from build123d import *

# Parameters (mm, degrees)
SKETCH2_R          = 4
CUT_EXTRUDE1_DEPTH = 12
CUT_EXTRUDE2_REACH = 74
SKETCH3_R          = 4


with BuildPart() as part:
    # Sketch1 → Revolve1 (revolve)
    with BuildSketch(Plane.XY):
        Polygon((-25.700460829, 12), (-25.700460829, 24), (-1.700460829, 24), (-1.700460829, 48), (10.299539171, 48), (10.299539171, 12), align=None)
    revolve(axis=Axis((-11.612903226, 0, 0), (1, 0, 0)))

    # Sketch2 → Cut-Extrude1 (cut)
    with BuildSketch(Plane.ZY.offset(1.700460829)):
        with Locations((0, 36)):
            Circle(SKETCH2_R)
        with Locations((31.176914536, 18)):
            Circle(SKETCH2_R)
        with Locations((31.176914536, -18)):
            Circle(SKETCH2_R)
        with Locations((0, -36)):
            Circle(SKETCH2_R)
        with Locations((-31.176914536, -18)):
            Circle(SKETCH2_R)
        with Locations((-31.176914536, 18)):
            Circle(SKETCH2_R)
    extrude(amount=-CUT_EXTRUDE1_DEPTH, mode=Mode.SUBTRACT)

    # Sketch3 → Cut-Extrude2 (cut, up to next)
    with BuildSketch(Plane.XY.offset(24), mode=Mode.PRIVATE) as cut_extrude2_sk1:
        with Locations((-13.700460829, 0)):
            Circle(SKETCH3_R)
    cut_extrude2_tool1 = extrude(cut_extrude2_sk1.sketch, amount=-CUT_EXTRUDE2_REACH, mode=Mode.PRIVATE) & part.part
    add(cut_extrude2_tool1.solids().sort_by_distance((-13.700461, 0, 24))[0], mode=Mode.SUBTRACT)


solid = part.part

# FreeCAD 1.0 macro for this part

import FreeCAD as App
import Part
import Sketcher
from FreeCAD import Vector


def add_polygon(sketch, points):
    """Adds a closed chain of lines whose ends are joined by coincident constraints."""
    first, n = sketch.GeometryCount, len(points)
    for a, b in zip(points, points[1:] + points[:1]):
        sketch.addGeometry(Part.LineSegment(App.Vector(*a, 0), App.Vector(*b, 0)), False)
    for i in range(n):
        sketch.addConstraint(Sketcher.Constraint("Coincident", first + i, 2, first + (i + 1) % n, 1))

doc = App.newDocument("Part")
params = doc.addObject("Spreadsheet::Sheet", "Params")
for row, (alias, value) in enumerate([
    ("sketch1_width", "36 mm"),
    ("sketch1_width2", "12 mm"),
    ("revolution_angle", "360 deg"),
    ("sketch2_diameter", "8 mm"),
    ("pocket1_length", "12 mm"),
    ("sketch3_diameter", "8 mm"),
], start=1):
    params.set(f"A{row}", alias)
    params.set(f"B{row}", "=" + value)
    params.setAlias(f"B{row}", alias)

body = doc.addObject("PartDesign::Body", "Body")

sketch1 = doc.addObject("Sketcher::SketchObject", "Sketch")
body.addObject(sketch1)
sketch1.AttachmentSupport = (doc.XY_Plane, [""])
sketch1.MapMode = "FlatFace"
add_polygon(sketch1, [(-26, 24), (-26, 12), (10, 12), (10, 48), (-2, 48), (-2, 24)])
sketch1.addConstraint(Sketcher.Constraint("Vertical", 0))
sketch1.addConstraint(Sketcher.Constraint("Horizontal", 1))
sketch1.addConstraint(Sketcher.Constraint("Vertical", 2))
sketch1.addConstraint(Sketcher.Constraint("Horizontal", 3))
sketch1.addConstraint(Sketcher.Constraint("Vertical", 4))
sketch1.addConstraint(Sketcher.Constraint("Horizontal", 5))
sketch1.addConstraint(Sketcher.Constraint("Equal", 3, 0))
sketch1.addConstraint(Sketcher.Constraint("Equal", 1, 2))
sketch1.addConstraint(Sketcher.Constraint("DistanceX", 1, 1, 1, 2, 36.0))
sketch1.addConstraint(Sketcher.Constraint("DistanceX", 3, 2, 3, 1, 12.0))
sketch1.addConstraint(Sketcher.Constraint("DistanceY", -1, 1, 0, 2, 12.0))
sketch1.addConstraint(Sketcher.Constraint("DistanceX", 0, 2, -1, 1, 25.700461))
sketch1.setExpression("Constraints[14]", "Params.sketch1_width")
sketch1.setExpression("Constraints[15]", "Params.sketch1_width2")
revolution = doc.addObject("PartDesign::Revolution", "Revolution")
body.addObject(revolution)
revolution.Profile = sketch1
revolution.ReferenceAxis = (sketch1, ["H_Axis"])
revolution.setExpression("Angle", "Params.revolution_angle")

sketch2 = doc.addObject("Sketcher::SketchObject", "Sketch001")
body.addObject(sketch2)
sketch2.AttachmentSupport = (doc.YZ_Plane, [""])
sketch2.MapMode = "FlatFace"
sketch2.AttachmentOffset = App.Placement(Vector(0, 0, -1.700461), App.Rotation())
sketch2.addGeometry(Part.Circle(Vector(36, 0, 0), Vector(0, 0, 1), 4), False)
sketch2.addGeometry(Part.Circle(Vector(18, 31.2, 0), Vector(0, 0, 1), 4), False)
sketch2.addGeometry(Part.Circle(Vector(-18, 31.2, 0), Vector(0, 0, 1), 4), False)
sketch2.addGeometry(Part.Circle(Vector(-36, 0, 0), Vector(0, 0, 1), 4), False)
sketch2.addGeometry(Part.Circle(Vector(-18, -31.2, 0), Vector(0, 0, 1), 4), False)
sketch2.addGeometry(Part.Circle(Vector(18, -31.2, 0), Vector(0, 0, 1), 4), False)
sketch2.addConstraint(Sketcher.Constraint("Equal", 0, 1))
sketch2.addConstraint(Sketcher.Constraint("Equal", 1, 2))
sketch2.addConstraint(Sketcher.Constraint("Equal", 2, 3))
sketch2.addConstraint(Sketcher.Constraint("Equal", 3, 4))
sketch2.addConstraint(Sketcher.Constraint("Equal", 4, 5))
sketch2.addConstraint(Sketcher.Constraint("Symmetric", 0, 3, 3, 3, -1, 1))
sketch2.addConstraint(Sketcher.Constraint("Symmetric", 1, 3, 4, 3, -1, 1))
sketch2.addConstraint(Sketcher.Constraint("Symmetric", 2, 3, 5, 3, -1, 1))
sketch2.addConstraint(Sketcher.Constraint("Symmetric", 1, 3, 2, 3, -2))
sketch2.addConstraint(Sketcher.Constraint("PointOnObject", 0, 3, -1))
sketch2.addConstraint(Sketcher.Constraint("Diameter", 0, 8.0))
sketch2.addConstraint(Sketcher.Constraint("DistanceX", -1, 1, 0, 3, 36.0))
sketch2.addConstraint(Sketcher.Constraint("DistanceX", -1, 1, 1, 3, 18.0))
sketch2.addConstraint(Sketcher.Constraint("DistanceY", 4, 3, 2, 3, 62.353829))
sketch2.setExpression("Constraints[10]", "Params.sketch2_diameter")
pocket1 = doc.addObject("PartDesign::Pocket", "Pocket")
body.addObject(pocket1)
pocket1.Profile = sketch2
pocket1.setExpression("Length", "Params.pocket1_length")
pocket1.Reversed = True

sketch3 = doc.addObject("Sketcher::SketchObject", "Sketch002")
body.addObject(sketch3)
sketch3.AttachmentSupport = (doc.XY_Plane, [""])
sketch3.MapMode = "FlatFace"
sketch3.AttachmentOffset = App.Placement(Vector(0, 0, 24), App.Rotation())
sketch3.addGeometry(Part.Circle(Vector(-13.7, 0, 0), Vector(0, 0, 1), 4), False)
sketch3.addConstraint(Sketcher.Constraint("PointOnObject", 0, 3, -1))
sketch3.addConstraint(Sketcher.Constraint("Diameter", 0, 8.0))
sketch3.addConstraint(Sketcher.Constraint("DistanceX", 0, 3, -1, 1, 13.700461))
sketch3.setExpression("Constraints[1]", "Params.sketch3_diameter")
pocket2 = doc.addObject("PartDesign::Pocket", "Pocket001")
body.addObject(pocket2)
pocket2.Profile = sketch3
pocket2.Type = "UpToFirst"

doc.recompute()
